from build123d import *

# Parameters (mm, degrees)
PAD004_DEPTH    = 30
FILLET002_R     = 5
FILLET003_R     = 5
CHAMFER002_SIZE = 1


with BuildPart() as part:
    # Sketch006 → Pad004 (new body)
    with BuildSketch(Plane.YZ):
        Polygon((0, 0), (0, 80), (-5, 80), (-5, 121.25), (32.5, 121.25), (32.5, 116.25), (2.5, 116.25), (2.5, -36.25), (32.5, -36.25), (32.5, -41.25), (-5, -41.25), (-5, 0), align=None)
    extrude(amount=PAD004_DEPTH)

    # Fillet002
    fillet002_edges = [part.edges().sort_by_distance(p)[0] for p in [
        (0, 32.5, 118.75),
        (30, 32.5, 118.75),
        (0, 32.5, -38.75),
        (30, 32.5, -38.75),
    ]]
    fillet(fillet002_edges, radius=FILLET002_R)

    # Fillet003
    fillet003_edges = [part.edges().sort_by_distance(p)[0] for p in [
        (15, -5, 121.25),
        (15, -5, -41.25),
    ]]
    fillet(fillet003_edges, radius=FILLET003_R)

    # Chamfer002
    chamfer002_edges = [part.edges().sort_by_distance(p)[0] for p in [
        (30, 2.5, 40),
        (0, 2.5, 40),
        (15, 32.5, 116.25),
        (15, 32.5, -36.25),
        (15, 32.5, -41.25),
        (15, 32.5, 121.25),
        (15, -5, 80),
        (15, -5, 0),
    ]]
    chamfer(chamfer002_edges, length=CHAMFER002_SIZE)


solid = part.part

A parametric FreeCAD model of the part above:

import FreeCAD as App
import Part
import Sketcher
from FreeCAD import Vector


def edges_at(feature, points):
    """Names of the edges that pass closest to the given points."""
    edges = feature.Shape.Edges
    near = lambda p: min(range(len(edges)), key=lambda i: edges[i].distToShape(Part.Vertex(*p))[0])
    return sorted({f"Edge{near(p) + 1}" for p in points})

doc = App.newDocument("Part")
body = doc.addObject("PartDesign::Body", "Body")

# Sketch on YZ plane
sketch1 = doc.addObject("Sketcher::SketchObject", "Sketch")
body.addObject(sketch1)
sketch1.AttachmentSupport = (doc.YZ_Plane, [""])
sketch1.MapMode = "FlatFace"
sketch1.addGeometry(Part.LineSegment(Vector(0, 80, 0), Vector(0, 0, 0)), False)
sketch1.addGeometry(Part.LineSegment(Vector(0, 0, 0), Vector(-5, 0, 0)), False)
sketch1.addGeometry(Part.LineSegment(Vector(-5, 0, 0), Vector(-5, -41.25, 0)), False)
sketch1.addGeometry(Part.LineSegment(Vector(-5, -41.25, 0), Vector(32.5, -41.25, 0)), False)
sketch1.addGeometry(Part.LineSegment(Vector(32.5, -41.25, 0), Vector(32.5, -36.25, 0)), False)
sketch1.addGeometry(Part.LineSegment(Vector(32.5, -36.25, 0), Vector(2.5, -36.25, 0)), False)
sketch1.addGeometry(Part.LineSegment(Vector(2.5, -36.25, 0), Vector(2.5, 116.25, 0)), False)
sketch1.addGeometry(Part.LineSegment(Vector(2.5, 116.25, 0), Vector(32.5, 116.25, 0)), False)
sketch1.addGeometry(Part.LineSegment(Vector(32.5, 116.25, 0), Vector(32.5, 121.25, 0)), False)
sketch1.addGeometry(Part.LineSegment(Vector(32.5, 121.25, 0), Vector(-5, 121.25, 0)), False)
sketch1.addGeometry(Part.LineSegment(Vector(-5, 121.25, 0), Vector(-5, 80, 0)), False)
sketch1.addGeometry(Part.LineSegment(Vector(-5, 80, 0), Vector(0, 80, 0)), False)
sketch1.addConstraint(Sketcher.Constraint("Coincident", 0, 2, 1, 1))
sketch1.addConstraint(Sketcher.Constraint("Coincident", 1, 2, 2, 1))
sketch1.addConstraint(Sketcher.Constraint("Coincident", 2, 2, 3, 1))
sketch1.addConstraint(Sketcher.Constraint("Coincident", 3, 2, 4, 1))
sketch1.addConstraint(Sketcher.Constraint("Coincident", 4, 2, 5, 1))
sketch1.addConstraint(Sketcher.Constraint("Coincident", 5, 2, 6, 1))
sketch1.addConstraint(Sketcher.Constraint("Coincident", 6, 2, 7, 1))
sketch1.addConstraint(Sketcher.Constraint("Coincident", 7, 2, 8, 1))
sketch1.addConstraint(Sketcher.Constraint("Coincident", 8, 2, 9, 1))
sketch1.addConstraint(Sketcher.Constraint("Coincident", 9, 2, 10, 1))
sketch1.addConstraint(Sketcher.Constraint("Coincident", 10, 2, 11, 1))
sketch1.addConstraint(Sketcher.Constraint("Coincident", 11, 2, 0, 1))
sketch1.addConstraint(Sketcher.Constraint("Vertical", 0))
sketch1.addConstraint(Sketcher.Constraint("Horizontal", 1))
sketch1.addConstraint(Sketcher.Constraint("Vertical", 2))
sketch1.addConstraint(Sketcher.Constraint("Horizontal", 3))
sketch1.addConstraint(Sketcher.Constraint("Vertical", 4))
sketch1.addConstraint(Sketcher.Constraint("Horizontal", 5))
sketch1.addConstraint(Sketcher.Constraint("Vertical", 6))
sketch1.addConstraint(Sketcher.Constraint("Horizontal", 7))
sketch1.addConstraint(Sketcher.Constraint("Vertical", 8))
sketch1.addConstraint(Sketcher.Constraint("Horizontal", 9))
sketch1.addConstraint(Sketcher.Constraint("Vertical", 10))
sketch1.addConstraint(Sketcher.Constraint("Horizontal", 11))
sketch1.addConstraint(Sketcher.Constraint("Coincident", 0, 2, -1, 1))
sketch1.addConstraint(Sketcher.Constraint("Vertical", 4, 2, 7, 2))
sketch1.addConstraint(Sketcher.Constraint("Vertical", 2, 2, 9, 2))
sketch1.addConstraint(Sketcher.Constraint("Equal", 11, 4))
sketch1.addConstraint(Sketcher.Constraint("Equal", 4, 8))
sketch1.addConstraint(Sketcher.Constraint("Equal", 2, 10))
sketch1.addConstraint(Sketcher.Constraint("DistanceX", 1, 2, 1, 1, 5.0))
sketch1.addConstraint(Sketcher.Constraint("DistanceX", 5, 2, 5, 1, 30.0))
sketch1.addConstraint(Sketcher.Constraint("DistanceY", 0, 2, 0, 1, 80.0))
sketch1.addConstraint(Sketcher.Constraint("DistanceX", 3, 1, 3, 2, 37.5))
sketch1.addConstraint(Sketcher.Constraint("DistanceY", 6, 1, 6, 2, 152.5))
pad1 = doc.addObject("PartDesign::Pad", "Pad")
body.addObject(pad1)
pad1.Profile = sketch1
pad1.Length = 30
doc.recompute()

fillet = doc.addObject("PartDesign::Fillet", "Fillet")
body.addObject(fillet)
fillet.Base = (pad1, edges_at(pad1, [
    (0, 32.5, 118.75),
    (30, 32.5, 118.75),
    (0, 32.5, -38.75),
    (30, 32.5, -38.75),
]))
fillet.Radius = 5
doc.recompute()

fillet2 = doc.addObject("PartDesign::Fillet", "Fillet001")
body.addObject(fillet2)
fillet2.Base = (fillet, edges_at(fillet, [(15, -5, 121.25), (15, -5, -41.25)]))
fillet2.Radius = 5
doc.recompute()

chamfer = doc.addObject("PartDesign::Chamfer", "Chamfer")
body.addObject(chamfer)
chamfer.Base = (fillet2, edges_at(fillet2, [
    (30, 2.5, 40),
    (0, 2.5, 40),
    (15, 32.5, 116.25),
    (15, 32.5, -36.25),
    (15, 32.5, -41.25),
    (15, 32.5, 121.25),
    (15, -5, 80),
    (15, -5, 0),
]))
chamfer.Size = 1

doc.recompute()
